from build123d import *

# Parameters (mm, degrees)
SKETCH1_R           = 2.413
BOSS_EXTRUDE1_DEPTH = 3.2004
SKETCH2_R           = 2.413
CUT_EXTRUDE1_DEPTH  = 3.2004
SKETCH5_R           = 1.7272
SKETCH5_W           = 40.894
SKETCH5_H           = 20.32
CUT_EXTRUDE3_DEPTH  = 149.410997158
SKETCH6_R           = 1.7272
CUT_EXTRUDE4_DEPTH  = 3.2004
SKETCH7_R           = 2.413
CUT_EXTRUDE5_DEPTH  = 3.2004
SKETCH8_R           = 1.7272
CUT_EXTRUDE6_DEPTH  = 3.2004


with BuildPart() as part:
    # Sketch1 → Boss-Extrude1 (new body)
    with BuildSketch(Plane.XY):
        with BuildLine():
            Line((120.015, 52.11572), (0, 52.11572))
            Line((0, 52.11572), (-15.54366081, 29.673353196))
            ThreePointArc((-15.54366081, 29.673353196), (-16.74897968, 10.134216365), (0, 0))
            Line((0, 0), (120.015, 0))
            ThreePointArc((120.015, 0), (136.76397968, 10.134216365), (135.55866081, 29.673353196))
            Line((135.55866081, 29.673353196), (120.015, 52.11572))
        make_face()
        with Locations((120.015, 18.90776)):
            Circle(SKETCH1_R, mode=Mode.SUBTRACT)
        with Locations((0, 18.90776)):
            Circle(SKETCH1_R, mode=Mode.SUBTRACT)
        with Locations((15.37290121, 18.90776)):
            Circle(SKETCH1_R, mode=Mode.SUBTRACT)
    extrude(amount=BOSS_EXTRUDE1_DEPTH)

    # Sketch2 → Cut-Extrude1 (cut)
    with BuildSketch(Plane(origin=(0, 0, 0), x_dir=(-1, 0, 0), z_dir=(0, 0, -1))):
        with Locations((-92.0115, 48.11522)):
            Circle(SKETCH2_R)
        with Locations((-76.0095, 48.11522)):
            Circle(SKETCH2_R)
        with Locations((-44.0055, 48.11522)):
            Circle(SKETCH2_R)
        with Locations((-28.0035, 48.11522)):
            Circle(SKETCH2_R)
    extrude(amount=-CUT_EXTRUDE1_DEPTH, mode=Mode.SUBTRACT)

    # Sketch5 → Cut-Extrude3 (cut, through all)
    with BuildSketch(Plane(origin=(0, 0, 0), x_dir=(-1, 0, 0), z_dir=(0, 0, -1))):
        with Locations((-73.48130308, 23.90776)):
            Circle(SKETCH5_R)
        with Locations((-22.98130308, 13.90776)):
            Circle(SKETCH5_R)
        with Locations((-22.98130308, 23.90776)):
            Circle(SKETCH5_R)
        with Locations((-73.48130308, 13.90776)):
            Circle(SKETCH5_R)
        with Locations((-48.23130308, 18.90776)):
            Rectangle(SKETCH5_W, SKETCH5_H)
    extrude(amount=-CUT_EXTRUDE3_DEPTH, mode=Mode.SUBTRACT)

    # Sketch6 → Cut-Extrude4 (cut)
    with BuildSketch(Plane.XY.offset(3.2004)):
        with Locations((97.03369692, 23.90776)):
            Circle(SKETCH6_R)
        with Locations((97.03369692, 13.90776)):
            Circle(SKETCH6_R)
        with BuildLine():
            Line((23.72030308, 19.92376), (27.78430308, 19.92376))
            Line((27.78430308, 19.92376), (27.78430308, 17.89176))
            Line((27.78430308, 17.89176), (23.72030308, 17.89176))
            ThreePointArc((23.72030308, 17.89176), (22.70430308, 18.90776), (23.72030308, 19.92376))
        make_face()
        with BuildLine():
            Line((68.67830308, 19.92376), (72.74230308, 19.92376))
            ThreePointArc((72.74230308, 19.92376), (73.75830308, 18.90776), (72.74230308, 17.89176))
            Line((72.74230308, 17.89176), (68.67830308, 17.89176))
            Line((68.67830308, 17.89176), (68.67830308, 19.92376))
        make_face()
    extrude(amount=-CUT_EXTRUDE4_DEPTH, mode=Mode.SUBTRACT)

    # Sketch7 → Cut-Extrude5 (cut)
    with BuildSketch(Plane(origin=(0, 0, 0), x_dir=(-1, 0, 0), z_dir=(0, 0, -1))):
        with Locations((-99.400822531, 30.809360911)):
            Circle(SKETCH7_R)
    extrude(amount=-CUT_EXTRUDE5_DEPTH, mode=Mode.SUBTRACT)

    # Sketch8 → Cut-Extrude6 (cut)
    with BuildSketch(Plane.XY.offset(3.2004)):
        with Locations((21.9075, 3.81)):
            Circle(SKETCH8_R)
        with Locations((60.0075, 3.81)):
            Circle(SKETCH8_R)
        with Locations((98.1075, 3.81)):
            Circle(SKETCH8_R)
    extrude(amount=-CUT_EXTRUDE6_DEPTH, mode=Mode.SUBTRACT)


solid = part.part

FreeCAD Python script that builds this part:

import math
import FreeCAD as App
import Part
import Sketcher
Q = App.Units.Quantity

doc = App.newDocument("Part")
params = doc.addObject("Spreadsheet::Sheet", "Params")
for row, (alias, value) in enumerate([
    ("sketch1_diameter", "0.19 in"),
    ("sketch1_width", "4.725 in"),
    ("pad1_length", "0.126 in"),
    ("sketch2_diameter", "0.19 in"),
    ("pocket1_length", "0.126 in"),
    ("sketch3_diameter", "0.136 in"),
    ("sketch3_height", "0.8 in"),
    ("sketch3_width", "1.61 in"),
    ("sketch4_radius", "0.04 in"),
    ("sketch4_diameter", "0.136 in"),
    ("sketch4_width", "0.16 in"),
    ("pocket3_length", "0.126 in"),
    ("sketch5_diameter", "0.19 in"),
    ("pocket4_length", "0.126 in"),
    ("sketch6_diameter", "0.136 in"),
    ("pocket5_length", "0.126 in"),
], start=1):
    params.set(f"A{row}", alias)
    params.set(f"B{row}", "=" + value)
    params.setAlias(f"B{row}", alias)

body = doc.addObject("PartDesign::Body", "Body")

sketch1 = body.newObject("Sketcher::SketchObject", "Sketch")
sketch1.AttachmentSupport = (doc.getObject("XY_Plane"), [""])
sketch1.MapMode = "FlatFace"
sketch1.addGeometry(Part.LineSegment(App.Vector(120, 52.1, 0), App.Vector(0, 52.1, 0)), False)
sketch1.addGeometry(Part.LineSegment(App.Vector(0, 52.1, 0), App.Vector(-15.5, 29.7, 0)), False)
sketch1.addGeometry(Part.ArcOfCircle(Part.Circle(App.Vector(0, 18.9, 0), App.Vector(0, 0, 1), 18.9), math.radians(145), math.radians(270)), False)
sketch1.addGeometry(Part.LineSegment(App.Vector(0, 0, 0), App.Vector(120, 0, 0)), False)
sketch1.addGeometry(Part.ArcOfCircle(Part.Circle(App.Vector(120, 18.9, 0), App.Vector(0, 0, 1), 18.9), math.radians(-90), math.radians(35)), False)
sketch1.addGeometry(Part.LineSegment(App.Vector(135.6, 29.7, 0), App.Vector(120, 52.1, 0)), False)
sketch1.addGeometry(Part.Circle(App.Vector(0, 18.9, 0), App.Vector(0, 0, 1), 2.4), False)
sketch1.addGeometry(Part.Circle(App.Vector(15.4, 18.9, 0), App.Vector(0, 0, 1), 2.4), False)
sketch1.addGeometry(Part.Circle(App.Vector(120, 18.9, 0), App.Vector(0, 0, 1), 2.4), False)
sketch1.addConstraint(Sketcher.Constraint("Coincident", 0, 2, 1, 1))
sketch1.addConstraint(Sketcher.Constraint("Tangent", 1, 2, 2, 1))
sketch1.addConstraint(Sketcher.Constraint("Tangent", 2, 2, 3, 1))
sketch1.addConstraint(Sketcher.Constraint("Tangent", 3, 2, 4, 1))
sketch1.addConstraint(Sketcher.Constraint("Tangent", 4, 2, 5, 1))
sketch1.addConstraint(Sketcher.Constraint("Coincident", 5, 2, 0, 1))
sketch1.addConstraint(Sketcher.Constraint("Horizontal", 0))
sketch1.addConstraint(Sketcher.Constraint("Horizontal", 3))
sketch1.addConstraint(Sketcher.Constraint("Coincident", 2, 2, -1, 1))
sketch1.addConstraint(Sketcher.Constraint("Coincident", 6, 3, 2, 3))
sketch1.addConstraint(Sketcher.Constraint("Coincident", 8, 3, 4, 3))
sketch1.addConstraint(Sketcher.Constraint("Equal", 2, 4))
sketch1.addConstraint(Sketcher.Constraint("Equal", 6, 7))
sketch1.addConstraint(Sketcher.Constraint("Equal", 7, 8))
sketch1.addConstraint(Sketcher.Constraint("PointOnObject", 0, 2, -2))
sketch1.addConstraint(Sketcher.Constraint("Horizontal", 6, 3, 7, 3))
sketch1.addConstraint(Sketcher.Constraint("Horizontal", 1, 2, 4, 2))
sketch1.addConstraint(Sketcher.Constraint("Diameter", 6, Q("0.19 in")))
sketch1.addConstraint(Sketcher.Constraint("Radius", 2, Q("0.7444 in")))
sketch1.addConstraint(Sketcher.Constraint("DistanceX", 0, 2, 0, 1, Q("4.725 in")))
sketch1.addConstraint(Sketcher.Constraint("DistanceY", -1, 1, 0, 2, Q("2.0518 in")))
sketch1.addConstraint(Sketcher.Constraint("DistanceX", -1, 1, 7, 3, 15.372901))
sketch1.setExpression("Constraints[17]", "Params.sketch1_diameter")
sketch1.setExpression("Constraints[19]", "Params.sketch1_width")
pad1 = body.newObject("PartDesign::Pad", "Pad")
pad1.Profile = sketch1
pad1.setExpression("Length", "Params.pad1_length")

sketch2 = body.newObject("Sketcher::SketchObject", "Sketch001")
sketch2.AttachmentSupport = (doc.getObject("XY_Plane"), [""])
sketch2.MapMode = "FlatFace"
sketch2.addGeometry(Part.Circle(App.Vector(92, 48.1, 0), App.Vector(0, 0, 1), 2.4), False)
sketch2.addGeometry(Part.Circle(App.Vector(76, 48.1, 0), App.Vector(0, 0, 1), 2.4), False)
sketch2.addGeometry(Part.Circle(App.Vector(44, 48.1, 0), App.Vector(0, 0, 1), 2.4), False)
sketch2.addGeometry(Part.Circle(App.Vector(28, 48.1, 0), App.Vector(0, 0, 1), 2.4), False)
sketch2.addConstraint(Sketcher.Constraint("Equal", 0, 1))
sketch2.addConstraint(Sketcher.Constraint("Equal", 1, 2))
sketch2.addConstraint(Sketcher.Constraint("Equal", 2, 3))
sketch2.addConstraint(Sketcher.Constraint("Horizontal", 0, 3, 1, 3))
sketch2.addConstraint(Sketcher.Constraint("Horizontal", 1, 3, 2, 3))
sketch2.addConstraint(Sketcher.Constraint("Horizontal", 2, 3, 3, 3))
sketch2.addConstraint(Sketcher.Constraint("Diameter", 0, Q("0.19 in")))
sketch2.addConstraint(Sketcher.Constraint("DistanceX", 1, 3, 0, 3, Q("0.63 in")))
sketch2.addConstraint(Sketcher.Constraint("DistanceX", 2, 3, 1, 3, Q("1.26 in")))
sketch2.addConstraint(Sketcher.Constraint("DistanceX", 3, 3, 2, 3, Q("0.63 in")))
sketch2.addConstraint(Sketcher.Constraint("DistanceX", -1, 1, 0, 3, Q("3.6225 in")))
sketch2.addConstraint(Sketcher.Constraint("DistanceY", -1, 1, 0, 3, Q("1.8943 in")))
sketch2.setExpression("Constraints[6]", "Params.sketch2_diameter")
pocket1 = body.newObject("PartDesign::Pocket", "Pocket")
pocket1.Profile = sketch2
pocket1.setExpression("Length", "Params.pocket1_length")
pocket1.Reversed = True

sketch3 = body.newObject("Sketcher::SketchObject", "Sketch002")
sketch3.AttachmentSupport = (doc.getObject("XY_Plane"), [""])
sketch3.MapMode = "FlatFace"
sketch3.addGeometry(Part.Circle(App.Vector(73.5, 23.9, 0), App.Vector(0, 0, 1), 1.7), False)
sketch3.addGeometry(Part.Circle(App.Vector(23, 13.9, 0), App.Vector(0, 0, 1), 1.7), False)
sketch3.addGeometry(Part.Circle(App.Vector(23, 23.9, 0), App.Vector(0, 0, 1), 1.7), False)
sketch3.addGeometry(Part.Circle(App.Vector(73.5, 13.9, 0), App.Vector(0, 0, 1), 1.7), False)
sketch3.addGeometry(Part.LineSegment(App.Vector(68.7, 29.1, 0), App.Vector(68.7, 8.7, 0)), False)
sketch3.addGeometry(Part.LineSegment(App.Vector(68.7, 8.7, 0), App.Vector(27.8, 8.7, 0)), False)
sketch3.addGeometry(Part.LineSegment(App.Vector(27.8, 8.7, 0), App.Vector(27.8, 29.1, 0)), False)
sketch3.addGeometry(Part.LineSegment(App.Vector(27.8, 29.1, 0), App.Vector(68.7, 29.1, 0)), False)
sketch3.addConstraint(Sketcher.Constraint("Coincident", 4, 2, 5, 1))
sketch3.addConstraint(Sketcher.Constraint("Coincident", 5, 2, 6, 1))
sketch3.addConstraint(Sketcher.Constraint("Coincident", 6, 2, 7, 1))
sketch3.addConstraint(Sketcher.Constraint("Coincident", 7, 2, 4, 1))
sketch3.addConstraint(Sketcher.Constraint("Vertical", 4))
sketch3.addConstraint(Sketcher.Constraint("Horizontal", 5))
sketch3.addConstraint(Sketcher.Constraint("Vertical", 6))
sketch3.addConstraint(Sketcher.Constraint("Horizontal", 7))
sketch3.addConstraint(Sketcher.Constraint("Equal", 0, 1))
sketch3.addConstraint(Sketcher.Constraint("Equal", 1, 2))
sketch3.addConstraint(Sketcher.Constraint("Equal", 2, 3))
sketch3.addConstraint(Sketcher.Constraint("Horizontal", 0, 3, 2, 3))
sketch3.addConstraint(Sketcher.Constraint("Horizontal", 1, 3, 3, 3))
sketch3.addConstraint(Sketcher.Constraint("Vertical", 1, 3, 2, 3))
sketch3.addConstraint(Sketcher.Constraint("Vertical", 0, 3, 3, 3))
sketch3.addConstraint(Sketcher.Constraint("Diameter", 0, Q("0.136 in")))
sketch3.addConstraint(Sketcher.Constraint("DistanceY", 4, 2, 4, 1, Q("0.8 in")))
sketch3.addConstraint(Sketcher.Constraint("DistanceX", 5, 2, 5, 1, Q("1.61 in")))
sketch3.addConstraint(Sketcher.Constraint("DistanceY", -1, 1, 4, 2, Q("0.3444 in")))
sketch3.addConstraint(Sketcher.Constraint("DistanceX", 1, 3, 0, 3, 50.5))
sketch3.addConstraint(Sketcher.Constraint("DistanceY", 1, 3, 0, 3, 10.0))
sketch3.addConstraint(Sketcher.Constraint("DistanceX", 4, 2, 3, 3, 4.803))
sketch3.addConstraint(Sketcher.Constraint("DistanceY", 4, 2, 3, 3, 5.16))
sketch3.addConstraint(Sketcher.Constraint("DistanceX", -1, 1, 0, 3, 73.481303))
sketch3.setExpression("Constraints[15]", "Params.sketch3_diameter")
sketch3.setExpression("Constraints[16]", "Params.sketch3_height")
sketch3.setExpression("Constraints[17]", "Params.sketch3_width")
pocket2 = body.newObject("PartDesign::Pocket", "Pocket001")
pocket2.Profile = sketch3
pocket2.Type = "ThroughAll"
pocket2.Reversed = True

sketch4 = body.newObject("Sketcher::SketchObject", "Sketch003")
sketch4.AttachmentSupport = (doc.getObject("XY_Plane"), [""])
sketch4.MapMode = "FlatFace"
sketch4.AttachmentOffset = App.Placement(App.Vector(0, 0, 0.126 * 25.4), App.Rotation())
sketch4.addGeometry(Part.Circle(App.Vector(97, 23.9, 0), App.Vector(0, 0, 1), 1.7), False)
sketch4.addGeometry(Part.Circle(App.Vector(97, 13.9, 0), App.Vector(0, 0, 1), 1.7), False)
sketch4.addGeometry(Part.LineSegment(App.Vector(27.8, 19.9, 0), App.Vector(23.7, 19.9, 0)), False)
sketch4.addGeometry(Part.ArcOfCircle(Part.Circle(App.Vector(23.7, 18.9, 0), App.Vector(0, 0, 1), 1), math.radians(90), math.radians(270)), False)
sketch4.addGeometry(Part.LineSegment(App.Vector(23.7, 17.9, 0), App.Vector(27.8, 17.9, 0)), False)
sketch4.addGeometry(Part.LineSegment(App.Vector(27.8, 17.9, 0), App.Vector(27.8, 19.9, 0)), False)
sketch4.addGeometry(Part.LineSegment(App.Vector(72.7, 19.9, 0), App.Vector(68.7, 19.9, 0)), False)
sketch4.addGeometry(Part.LineSegment(App.Vector(68.7, 19.9, 0), App.Vector(68.7, 17.9, 0)), False)
sketch4.addGeometry(Part.LineSegment(App.Vector(68.7, 17.9, 0), App.Vector(72.7, 17.9, 0)), False)
sketch4.addGeometry(Part.ArcOfCircle(Part.Circle(App.Vector(72.7, 18.9, 0), App.Vector(0, 0, 1), 1), math.radians(-90), math.radians(90)), False)
sketch4.addConstraint(Sketcher.Constraint("Tangent", 2, 2, 3, 1))
sketch4.addConstraint(Sketcher.Constraint("Tangent", 3, 2, 4, 1))
sketch4.addConstraint(Sketcher.Constraint("Coincident", 4, 2, 5, 1))
sketch4.addConstraint(Sketcher.Constraint("Coincident", 5, 2, 2, 1))
sketch4.addConstraint(Sketcher.Constraint("Coincident", 6, 2, 7, 1))
sketch4.addConstraint(Sketcher.Constraint("Coincident", 7, 2, 8, 1))
sketch4.addConstraint(Sketcher.Constraint("Tangent", 8, 2, 9, 1))
sketch4.addConstraint(Sketcher.Constraint("Tangent", 9, 2, 6, 1))
sketch4.addConstraint(Sketcher.Constraint("Horizontal", 2))
sketch4.addConstraint(Sketcher.Constraint("Horizontal", 4))
sketch4.addConstraint(Sketcher.Constraint("Vertical", 5))
sketch4.addConstraint(Sketcher.Constraint("Horizontal", 6))
sketch4.addConstraint(Sketcher.Constraint("Vertical", 7))
sketch4.addConstraint(Sketcher.Constraint("Horizontal", 8))
sketch4.addConstraint(Sketcher.Constraint("Equal", 0, 1))
sketch4.addConstraint(Sketcher.Constraint("Equal", 3, 9))
sketch4.addConstraint(Sketcher.Constraint("Horizontal", 3, 3, 9, 3))
sketch4.addConstraint(Sketcher.Constraint("Vertical", 0, 3, 1, 3))
sketch4.addConstraint(Sketcher.Constraint("Equal", 4, 6))
sketch4.addConstraint(Sketcher.Constraint("Radius", 3, Q("0.04 in")))
sketch4.addConstraint(Sketcher.Constraint("Diameter", 0, Q("0.136 in")))
sketch4.addConstraint(Sketcher.Constraint("DistanceX", 2, 2, 2, 1, Q("0.16 in")))
sketch4.addConstraint(Sketcher.Constraint("DistanceX", 3, 3, 9, 3, Q("1.93 in")))
sketch4.addConstraint(Sketcher.Constraint("DistanceY", -1, 1, 3, 3, Q("0.7444 in")))
sketch4.addConstraint(Sketcher.Constraint("DistanceY", 1, 3, 0, 3, 10.0))
sketch4.addConstraint(Sketcher.Constraint("DistanceY", 3, 3, 0, 3, 5.0))
sketch4.addConstraint(Sketcher.Constraint("DistanceX", -1, 1, 0, 3, 97.033697))
sketch4.addConstraint(Sketcher.Constraint("DistanceX", -1, 1, 3, 3, 23.720303))
sketch4.setExpression("Constraints[19]", "Params.sketch4_radius")
sketch4.setExpression("Constraints[20]", "Params.sketch4_diameter")
sketch4.setExpression("Constraints[21]", "Params.sketch4_width")
pocket3 = body.newObject("PartDesign::Pocket", "Pocket002")
pocket3.Profile = sketch4
pocket3.setExpression("Length", "Params.pocket3_length")

sketch5 = body.newObject("Sketcher::SketchObject", "Sketch004")
sketch5.AttachmentSupport = (doc.getObject("XY_Plane"), [""])
sketch5.MapMode = "FlatFace"
sketch5.addGeometry(Part.Circle(App.Vector(99.4, 30.8, 0), App.Vector(0, 0, 1), 2.4), False)
sketch5.addConstraint(Sketcher.Constraint("Diameter", 0, Q("0.19 in")))
sketch5.addConstraint(Sketcher.Constraint("DistanceY", -1, 1, 0, 3, 30.809361))
sketch5.addConstraint(Sketcher.Constraint("DistanceX", -1, 1, 0, 3, 99.400823))
sketch5.setExpression("Constraints[0]", "Params.sketch5_diameter")
pocket4 = body.newObject("PartDesign::Pocket", "Pocket003")
pocket4.Profile = sketch5
pocket4.setExpression("Length", "Params.pocket4_length")
pocket4.Reversed = True

sketch6 = body.newObject("Sketcher::SketchObject", "Sketch005")
sketch6.AttachmentSupport = (doc.getObject("XY_Plane"), [""])
sketch6.MapMode = "FlatFace"
sketch6.AttachmentOffset = App.Placement(App.Vector(0, 0, 0.126 * 25.4), App.Rotation())
sketch6.addGeometry(Part.Circle(App.Vector(21.9, 3.8, 0), App.Vector(0, 0, 1), 1.7), False)
sketch6.addGeometry(Part.Circle(App.Vector(60, 3.8, 0), App.Vector(0, 0, 1), 1.7), False)
sketch6.addGeometry(Part.Circle(App.Vector(98.1, 3.8, 0), App.Vector(0, 0, 1), 1.7), False)
sketch6.addConstraint(Sketcher.Constraint("Equal", 0, 1))
sketch6.addConstraint(Sketcher.Constraint("Equal", 1, 2))
sketch6.addConstraint(Sketcher.Constraint("Horizontal", 0, 3, 1, 3))
sketch6.addConstraint(Sketcher.Constraint("Horizontal", 1, 3, 2, 3))
sketch6.addConstraint(Sketcher.Constraint("Diameter", 0, Q("0.136 in")))
sketch6.addConstraint(Sketcher.Constraint("DistanceX", 0, 3, 2, 3, Q("3 in")))
sketch6.addConstraint(Sketcher.Constraint("DistanceX", 0, 3, 1, 3, Q("1.5 in")))
sketch6.addConstraint(Sketcher.Constraint("DistanceY", -1, 1, 0, 3, Q("0.15 in")))
sketch6.addConstraint(Sketcher.Constraint("DistanceX", -1, 1, 0, 3, Q("0.8625 in")))
sketch6.setExpression("Constraints[4]", "Params.sketch6_diameter")
pocket5 = body.newObject("PartDesign::Pocket", "Pocket004")
pocket5.Profile = sketch6
pocket5.setExpression("Length", "Params.pocket5_length")

doc.recompute()
